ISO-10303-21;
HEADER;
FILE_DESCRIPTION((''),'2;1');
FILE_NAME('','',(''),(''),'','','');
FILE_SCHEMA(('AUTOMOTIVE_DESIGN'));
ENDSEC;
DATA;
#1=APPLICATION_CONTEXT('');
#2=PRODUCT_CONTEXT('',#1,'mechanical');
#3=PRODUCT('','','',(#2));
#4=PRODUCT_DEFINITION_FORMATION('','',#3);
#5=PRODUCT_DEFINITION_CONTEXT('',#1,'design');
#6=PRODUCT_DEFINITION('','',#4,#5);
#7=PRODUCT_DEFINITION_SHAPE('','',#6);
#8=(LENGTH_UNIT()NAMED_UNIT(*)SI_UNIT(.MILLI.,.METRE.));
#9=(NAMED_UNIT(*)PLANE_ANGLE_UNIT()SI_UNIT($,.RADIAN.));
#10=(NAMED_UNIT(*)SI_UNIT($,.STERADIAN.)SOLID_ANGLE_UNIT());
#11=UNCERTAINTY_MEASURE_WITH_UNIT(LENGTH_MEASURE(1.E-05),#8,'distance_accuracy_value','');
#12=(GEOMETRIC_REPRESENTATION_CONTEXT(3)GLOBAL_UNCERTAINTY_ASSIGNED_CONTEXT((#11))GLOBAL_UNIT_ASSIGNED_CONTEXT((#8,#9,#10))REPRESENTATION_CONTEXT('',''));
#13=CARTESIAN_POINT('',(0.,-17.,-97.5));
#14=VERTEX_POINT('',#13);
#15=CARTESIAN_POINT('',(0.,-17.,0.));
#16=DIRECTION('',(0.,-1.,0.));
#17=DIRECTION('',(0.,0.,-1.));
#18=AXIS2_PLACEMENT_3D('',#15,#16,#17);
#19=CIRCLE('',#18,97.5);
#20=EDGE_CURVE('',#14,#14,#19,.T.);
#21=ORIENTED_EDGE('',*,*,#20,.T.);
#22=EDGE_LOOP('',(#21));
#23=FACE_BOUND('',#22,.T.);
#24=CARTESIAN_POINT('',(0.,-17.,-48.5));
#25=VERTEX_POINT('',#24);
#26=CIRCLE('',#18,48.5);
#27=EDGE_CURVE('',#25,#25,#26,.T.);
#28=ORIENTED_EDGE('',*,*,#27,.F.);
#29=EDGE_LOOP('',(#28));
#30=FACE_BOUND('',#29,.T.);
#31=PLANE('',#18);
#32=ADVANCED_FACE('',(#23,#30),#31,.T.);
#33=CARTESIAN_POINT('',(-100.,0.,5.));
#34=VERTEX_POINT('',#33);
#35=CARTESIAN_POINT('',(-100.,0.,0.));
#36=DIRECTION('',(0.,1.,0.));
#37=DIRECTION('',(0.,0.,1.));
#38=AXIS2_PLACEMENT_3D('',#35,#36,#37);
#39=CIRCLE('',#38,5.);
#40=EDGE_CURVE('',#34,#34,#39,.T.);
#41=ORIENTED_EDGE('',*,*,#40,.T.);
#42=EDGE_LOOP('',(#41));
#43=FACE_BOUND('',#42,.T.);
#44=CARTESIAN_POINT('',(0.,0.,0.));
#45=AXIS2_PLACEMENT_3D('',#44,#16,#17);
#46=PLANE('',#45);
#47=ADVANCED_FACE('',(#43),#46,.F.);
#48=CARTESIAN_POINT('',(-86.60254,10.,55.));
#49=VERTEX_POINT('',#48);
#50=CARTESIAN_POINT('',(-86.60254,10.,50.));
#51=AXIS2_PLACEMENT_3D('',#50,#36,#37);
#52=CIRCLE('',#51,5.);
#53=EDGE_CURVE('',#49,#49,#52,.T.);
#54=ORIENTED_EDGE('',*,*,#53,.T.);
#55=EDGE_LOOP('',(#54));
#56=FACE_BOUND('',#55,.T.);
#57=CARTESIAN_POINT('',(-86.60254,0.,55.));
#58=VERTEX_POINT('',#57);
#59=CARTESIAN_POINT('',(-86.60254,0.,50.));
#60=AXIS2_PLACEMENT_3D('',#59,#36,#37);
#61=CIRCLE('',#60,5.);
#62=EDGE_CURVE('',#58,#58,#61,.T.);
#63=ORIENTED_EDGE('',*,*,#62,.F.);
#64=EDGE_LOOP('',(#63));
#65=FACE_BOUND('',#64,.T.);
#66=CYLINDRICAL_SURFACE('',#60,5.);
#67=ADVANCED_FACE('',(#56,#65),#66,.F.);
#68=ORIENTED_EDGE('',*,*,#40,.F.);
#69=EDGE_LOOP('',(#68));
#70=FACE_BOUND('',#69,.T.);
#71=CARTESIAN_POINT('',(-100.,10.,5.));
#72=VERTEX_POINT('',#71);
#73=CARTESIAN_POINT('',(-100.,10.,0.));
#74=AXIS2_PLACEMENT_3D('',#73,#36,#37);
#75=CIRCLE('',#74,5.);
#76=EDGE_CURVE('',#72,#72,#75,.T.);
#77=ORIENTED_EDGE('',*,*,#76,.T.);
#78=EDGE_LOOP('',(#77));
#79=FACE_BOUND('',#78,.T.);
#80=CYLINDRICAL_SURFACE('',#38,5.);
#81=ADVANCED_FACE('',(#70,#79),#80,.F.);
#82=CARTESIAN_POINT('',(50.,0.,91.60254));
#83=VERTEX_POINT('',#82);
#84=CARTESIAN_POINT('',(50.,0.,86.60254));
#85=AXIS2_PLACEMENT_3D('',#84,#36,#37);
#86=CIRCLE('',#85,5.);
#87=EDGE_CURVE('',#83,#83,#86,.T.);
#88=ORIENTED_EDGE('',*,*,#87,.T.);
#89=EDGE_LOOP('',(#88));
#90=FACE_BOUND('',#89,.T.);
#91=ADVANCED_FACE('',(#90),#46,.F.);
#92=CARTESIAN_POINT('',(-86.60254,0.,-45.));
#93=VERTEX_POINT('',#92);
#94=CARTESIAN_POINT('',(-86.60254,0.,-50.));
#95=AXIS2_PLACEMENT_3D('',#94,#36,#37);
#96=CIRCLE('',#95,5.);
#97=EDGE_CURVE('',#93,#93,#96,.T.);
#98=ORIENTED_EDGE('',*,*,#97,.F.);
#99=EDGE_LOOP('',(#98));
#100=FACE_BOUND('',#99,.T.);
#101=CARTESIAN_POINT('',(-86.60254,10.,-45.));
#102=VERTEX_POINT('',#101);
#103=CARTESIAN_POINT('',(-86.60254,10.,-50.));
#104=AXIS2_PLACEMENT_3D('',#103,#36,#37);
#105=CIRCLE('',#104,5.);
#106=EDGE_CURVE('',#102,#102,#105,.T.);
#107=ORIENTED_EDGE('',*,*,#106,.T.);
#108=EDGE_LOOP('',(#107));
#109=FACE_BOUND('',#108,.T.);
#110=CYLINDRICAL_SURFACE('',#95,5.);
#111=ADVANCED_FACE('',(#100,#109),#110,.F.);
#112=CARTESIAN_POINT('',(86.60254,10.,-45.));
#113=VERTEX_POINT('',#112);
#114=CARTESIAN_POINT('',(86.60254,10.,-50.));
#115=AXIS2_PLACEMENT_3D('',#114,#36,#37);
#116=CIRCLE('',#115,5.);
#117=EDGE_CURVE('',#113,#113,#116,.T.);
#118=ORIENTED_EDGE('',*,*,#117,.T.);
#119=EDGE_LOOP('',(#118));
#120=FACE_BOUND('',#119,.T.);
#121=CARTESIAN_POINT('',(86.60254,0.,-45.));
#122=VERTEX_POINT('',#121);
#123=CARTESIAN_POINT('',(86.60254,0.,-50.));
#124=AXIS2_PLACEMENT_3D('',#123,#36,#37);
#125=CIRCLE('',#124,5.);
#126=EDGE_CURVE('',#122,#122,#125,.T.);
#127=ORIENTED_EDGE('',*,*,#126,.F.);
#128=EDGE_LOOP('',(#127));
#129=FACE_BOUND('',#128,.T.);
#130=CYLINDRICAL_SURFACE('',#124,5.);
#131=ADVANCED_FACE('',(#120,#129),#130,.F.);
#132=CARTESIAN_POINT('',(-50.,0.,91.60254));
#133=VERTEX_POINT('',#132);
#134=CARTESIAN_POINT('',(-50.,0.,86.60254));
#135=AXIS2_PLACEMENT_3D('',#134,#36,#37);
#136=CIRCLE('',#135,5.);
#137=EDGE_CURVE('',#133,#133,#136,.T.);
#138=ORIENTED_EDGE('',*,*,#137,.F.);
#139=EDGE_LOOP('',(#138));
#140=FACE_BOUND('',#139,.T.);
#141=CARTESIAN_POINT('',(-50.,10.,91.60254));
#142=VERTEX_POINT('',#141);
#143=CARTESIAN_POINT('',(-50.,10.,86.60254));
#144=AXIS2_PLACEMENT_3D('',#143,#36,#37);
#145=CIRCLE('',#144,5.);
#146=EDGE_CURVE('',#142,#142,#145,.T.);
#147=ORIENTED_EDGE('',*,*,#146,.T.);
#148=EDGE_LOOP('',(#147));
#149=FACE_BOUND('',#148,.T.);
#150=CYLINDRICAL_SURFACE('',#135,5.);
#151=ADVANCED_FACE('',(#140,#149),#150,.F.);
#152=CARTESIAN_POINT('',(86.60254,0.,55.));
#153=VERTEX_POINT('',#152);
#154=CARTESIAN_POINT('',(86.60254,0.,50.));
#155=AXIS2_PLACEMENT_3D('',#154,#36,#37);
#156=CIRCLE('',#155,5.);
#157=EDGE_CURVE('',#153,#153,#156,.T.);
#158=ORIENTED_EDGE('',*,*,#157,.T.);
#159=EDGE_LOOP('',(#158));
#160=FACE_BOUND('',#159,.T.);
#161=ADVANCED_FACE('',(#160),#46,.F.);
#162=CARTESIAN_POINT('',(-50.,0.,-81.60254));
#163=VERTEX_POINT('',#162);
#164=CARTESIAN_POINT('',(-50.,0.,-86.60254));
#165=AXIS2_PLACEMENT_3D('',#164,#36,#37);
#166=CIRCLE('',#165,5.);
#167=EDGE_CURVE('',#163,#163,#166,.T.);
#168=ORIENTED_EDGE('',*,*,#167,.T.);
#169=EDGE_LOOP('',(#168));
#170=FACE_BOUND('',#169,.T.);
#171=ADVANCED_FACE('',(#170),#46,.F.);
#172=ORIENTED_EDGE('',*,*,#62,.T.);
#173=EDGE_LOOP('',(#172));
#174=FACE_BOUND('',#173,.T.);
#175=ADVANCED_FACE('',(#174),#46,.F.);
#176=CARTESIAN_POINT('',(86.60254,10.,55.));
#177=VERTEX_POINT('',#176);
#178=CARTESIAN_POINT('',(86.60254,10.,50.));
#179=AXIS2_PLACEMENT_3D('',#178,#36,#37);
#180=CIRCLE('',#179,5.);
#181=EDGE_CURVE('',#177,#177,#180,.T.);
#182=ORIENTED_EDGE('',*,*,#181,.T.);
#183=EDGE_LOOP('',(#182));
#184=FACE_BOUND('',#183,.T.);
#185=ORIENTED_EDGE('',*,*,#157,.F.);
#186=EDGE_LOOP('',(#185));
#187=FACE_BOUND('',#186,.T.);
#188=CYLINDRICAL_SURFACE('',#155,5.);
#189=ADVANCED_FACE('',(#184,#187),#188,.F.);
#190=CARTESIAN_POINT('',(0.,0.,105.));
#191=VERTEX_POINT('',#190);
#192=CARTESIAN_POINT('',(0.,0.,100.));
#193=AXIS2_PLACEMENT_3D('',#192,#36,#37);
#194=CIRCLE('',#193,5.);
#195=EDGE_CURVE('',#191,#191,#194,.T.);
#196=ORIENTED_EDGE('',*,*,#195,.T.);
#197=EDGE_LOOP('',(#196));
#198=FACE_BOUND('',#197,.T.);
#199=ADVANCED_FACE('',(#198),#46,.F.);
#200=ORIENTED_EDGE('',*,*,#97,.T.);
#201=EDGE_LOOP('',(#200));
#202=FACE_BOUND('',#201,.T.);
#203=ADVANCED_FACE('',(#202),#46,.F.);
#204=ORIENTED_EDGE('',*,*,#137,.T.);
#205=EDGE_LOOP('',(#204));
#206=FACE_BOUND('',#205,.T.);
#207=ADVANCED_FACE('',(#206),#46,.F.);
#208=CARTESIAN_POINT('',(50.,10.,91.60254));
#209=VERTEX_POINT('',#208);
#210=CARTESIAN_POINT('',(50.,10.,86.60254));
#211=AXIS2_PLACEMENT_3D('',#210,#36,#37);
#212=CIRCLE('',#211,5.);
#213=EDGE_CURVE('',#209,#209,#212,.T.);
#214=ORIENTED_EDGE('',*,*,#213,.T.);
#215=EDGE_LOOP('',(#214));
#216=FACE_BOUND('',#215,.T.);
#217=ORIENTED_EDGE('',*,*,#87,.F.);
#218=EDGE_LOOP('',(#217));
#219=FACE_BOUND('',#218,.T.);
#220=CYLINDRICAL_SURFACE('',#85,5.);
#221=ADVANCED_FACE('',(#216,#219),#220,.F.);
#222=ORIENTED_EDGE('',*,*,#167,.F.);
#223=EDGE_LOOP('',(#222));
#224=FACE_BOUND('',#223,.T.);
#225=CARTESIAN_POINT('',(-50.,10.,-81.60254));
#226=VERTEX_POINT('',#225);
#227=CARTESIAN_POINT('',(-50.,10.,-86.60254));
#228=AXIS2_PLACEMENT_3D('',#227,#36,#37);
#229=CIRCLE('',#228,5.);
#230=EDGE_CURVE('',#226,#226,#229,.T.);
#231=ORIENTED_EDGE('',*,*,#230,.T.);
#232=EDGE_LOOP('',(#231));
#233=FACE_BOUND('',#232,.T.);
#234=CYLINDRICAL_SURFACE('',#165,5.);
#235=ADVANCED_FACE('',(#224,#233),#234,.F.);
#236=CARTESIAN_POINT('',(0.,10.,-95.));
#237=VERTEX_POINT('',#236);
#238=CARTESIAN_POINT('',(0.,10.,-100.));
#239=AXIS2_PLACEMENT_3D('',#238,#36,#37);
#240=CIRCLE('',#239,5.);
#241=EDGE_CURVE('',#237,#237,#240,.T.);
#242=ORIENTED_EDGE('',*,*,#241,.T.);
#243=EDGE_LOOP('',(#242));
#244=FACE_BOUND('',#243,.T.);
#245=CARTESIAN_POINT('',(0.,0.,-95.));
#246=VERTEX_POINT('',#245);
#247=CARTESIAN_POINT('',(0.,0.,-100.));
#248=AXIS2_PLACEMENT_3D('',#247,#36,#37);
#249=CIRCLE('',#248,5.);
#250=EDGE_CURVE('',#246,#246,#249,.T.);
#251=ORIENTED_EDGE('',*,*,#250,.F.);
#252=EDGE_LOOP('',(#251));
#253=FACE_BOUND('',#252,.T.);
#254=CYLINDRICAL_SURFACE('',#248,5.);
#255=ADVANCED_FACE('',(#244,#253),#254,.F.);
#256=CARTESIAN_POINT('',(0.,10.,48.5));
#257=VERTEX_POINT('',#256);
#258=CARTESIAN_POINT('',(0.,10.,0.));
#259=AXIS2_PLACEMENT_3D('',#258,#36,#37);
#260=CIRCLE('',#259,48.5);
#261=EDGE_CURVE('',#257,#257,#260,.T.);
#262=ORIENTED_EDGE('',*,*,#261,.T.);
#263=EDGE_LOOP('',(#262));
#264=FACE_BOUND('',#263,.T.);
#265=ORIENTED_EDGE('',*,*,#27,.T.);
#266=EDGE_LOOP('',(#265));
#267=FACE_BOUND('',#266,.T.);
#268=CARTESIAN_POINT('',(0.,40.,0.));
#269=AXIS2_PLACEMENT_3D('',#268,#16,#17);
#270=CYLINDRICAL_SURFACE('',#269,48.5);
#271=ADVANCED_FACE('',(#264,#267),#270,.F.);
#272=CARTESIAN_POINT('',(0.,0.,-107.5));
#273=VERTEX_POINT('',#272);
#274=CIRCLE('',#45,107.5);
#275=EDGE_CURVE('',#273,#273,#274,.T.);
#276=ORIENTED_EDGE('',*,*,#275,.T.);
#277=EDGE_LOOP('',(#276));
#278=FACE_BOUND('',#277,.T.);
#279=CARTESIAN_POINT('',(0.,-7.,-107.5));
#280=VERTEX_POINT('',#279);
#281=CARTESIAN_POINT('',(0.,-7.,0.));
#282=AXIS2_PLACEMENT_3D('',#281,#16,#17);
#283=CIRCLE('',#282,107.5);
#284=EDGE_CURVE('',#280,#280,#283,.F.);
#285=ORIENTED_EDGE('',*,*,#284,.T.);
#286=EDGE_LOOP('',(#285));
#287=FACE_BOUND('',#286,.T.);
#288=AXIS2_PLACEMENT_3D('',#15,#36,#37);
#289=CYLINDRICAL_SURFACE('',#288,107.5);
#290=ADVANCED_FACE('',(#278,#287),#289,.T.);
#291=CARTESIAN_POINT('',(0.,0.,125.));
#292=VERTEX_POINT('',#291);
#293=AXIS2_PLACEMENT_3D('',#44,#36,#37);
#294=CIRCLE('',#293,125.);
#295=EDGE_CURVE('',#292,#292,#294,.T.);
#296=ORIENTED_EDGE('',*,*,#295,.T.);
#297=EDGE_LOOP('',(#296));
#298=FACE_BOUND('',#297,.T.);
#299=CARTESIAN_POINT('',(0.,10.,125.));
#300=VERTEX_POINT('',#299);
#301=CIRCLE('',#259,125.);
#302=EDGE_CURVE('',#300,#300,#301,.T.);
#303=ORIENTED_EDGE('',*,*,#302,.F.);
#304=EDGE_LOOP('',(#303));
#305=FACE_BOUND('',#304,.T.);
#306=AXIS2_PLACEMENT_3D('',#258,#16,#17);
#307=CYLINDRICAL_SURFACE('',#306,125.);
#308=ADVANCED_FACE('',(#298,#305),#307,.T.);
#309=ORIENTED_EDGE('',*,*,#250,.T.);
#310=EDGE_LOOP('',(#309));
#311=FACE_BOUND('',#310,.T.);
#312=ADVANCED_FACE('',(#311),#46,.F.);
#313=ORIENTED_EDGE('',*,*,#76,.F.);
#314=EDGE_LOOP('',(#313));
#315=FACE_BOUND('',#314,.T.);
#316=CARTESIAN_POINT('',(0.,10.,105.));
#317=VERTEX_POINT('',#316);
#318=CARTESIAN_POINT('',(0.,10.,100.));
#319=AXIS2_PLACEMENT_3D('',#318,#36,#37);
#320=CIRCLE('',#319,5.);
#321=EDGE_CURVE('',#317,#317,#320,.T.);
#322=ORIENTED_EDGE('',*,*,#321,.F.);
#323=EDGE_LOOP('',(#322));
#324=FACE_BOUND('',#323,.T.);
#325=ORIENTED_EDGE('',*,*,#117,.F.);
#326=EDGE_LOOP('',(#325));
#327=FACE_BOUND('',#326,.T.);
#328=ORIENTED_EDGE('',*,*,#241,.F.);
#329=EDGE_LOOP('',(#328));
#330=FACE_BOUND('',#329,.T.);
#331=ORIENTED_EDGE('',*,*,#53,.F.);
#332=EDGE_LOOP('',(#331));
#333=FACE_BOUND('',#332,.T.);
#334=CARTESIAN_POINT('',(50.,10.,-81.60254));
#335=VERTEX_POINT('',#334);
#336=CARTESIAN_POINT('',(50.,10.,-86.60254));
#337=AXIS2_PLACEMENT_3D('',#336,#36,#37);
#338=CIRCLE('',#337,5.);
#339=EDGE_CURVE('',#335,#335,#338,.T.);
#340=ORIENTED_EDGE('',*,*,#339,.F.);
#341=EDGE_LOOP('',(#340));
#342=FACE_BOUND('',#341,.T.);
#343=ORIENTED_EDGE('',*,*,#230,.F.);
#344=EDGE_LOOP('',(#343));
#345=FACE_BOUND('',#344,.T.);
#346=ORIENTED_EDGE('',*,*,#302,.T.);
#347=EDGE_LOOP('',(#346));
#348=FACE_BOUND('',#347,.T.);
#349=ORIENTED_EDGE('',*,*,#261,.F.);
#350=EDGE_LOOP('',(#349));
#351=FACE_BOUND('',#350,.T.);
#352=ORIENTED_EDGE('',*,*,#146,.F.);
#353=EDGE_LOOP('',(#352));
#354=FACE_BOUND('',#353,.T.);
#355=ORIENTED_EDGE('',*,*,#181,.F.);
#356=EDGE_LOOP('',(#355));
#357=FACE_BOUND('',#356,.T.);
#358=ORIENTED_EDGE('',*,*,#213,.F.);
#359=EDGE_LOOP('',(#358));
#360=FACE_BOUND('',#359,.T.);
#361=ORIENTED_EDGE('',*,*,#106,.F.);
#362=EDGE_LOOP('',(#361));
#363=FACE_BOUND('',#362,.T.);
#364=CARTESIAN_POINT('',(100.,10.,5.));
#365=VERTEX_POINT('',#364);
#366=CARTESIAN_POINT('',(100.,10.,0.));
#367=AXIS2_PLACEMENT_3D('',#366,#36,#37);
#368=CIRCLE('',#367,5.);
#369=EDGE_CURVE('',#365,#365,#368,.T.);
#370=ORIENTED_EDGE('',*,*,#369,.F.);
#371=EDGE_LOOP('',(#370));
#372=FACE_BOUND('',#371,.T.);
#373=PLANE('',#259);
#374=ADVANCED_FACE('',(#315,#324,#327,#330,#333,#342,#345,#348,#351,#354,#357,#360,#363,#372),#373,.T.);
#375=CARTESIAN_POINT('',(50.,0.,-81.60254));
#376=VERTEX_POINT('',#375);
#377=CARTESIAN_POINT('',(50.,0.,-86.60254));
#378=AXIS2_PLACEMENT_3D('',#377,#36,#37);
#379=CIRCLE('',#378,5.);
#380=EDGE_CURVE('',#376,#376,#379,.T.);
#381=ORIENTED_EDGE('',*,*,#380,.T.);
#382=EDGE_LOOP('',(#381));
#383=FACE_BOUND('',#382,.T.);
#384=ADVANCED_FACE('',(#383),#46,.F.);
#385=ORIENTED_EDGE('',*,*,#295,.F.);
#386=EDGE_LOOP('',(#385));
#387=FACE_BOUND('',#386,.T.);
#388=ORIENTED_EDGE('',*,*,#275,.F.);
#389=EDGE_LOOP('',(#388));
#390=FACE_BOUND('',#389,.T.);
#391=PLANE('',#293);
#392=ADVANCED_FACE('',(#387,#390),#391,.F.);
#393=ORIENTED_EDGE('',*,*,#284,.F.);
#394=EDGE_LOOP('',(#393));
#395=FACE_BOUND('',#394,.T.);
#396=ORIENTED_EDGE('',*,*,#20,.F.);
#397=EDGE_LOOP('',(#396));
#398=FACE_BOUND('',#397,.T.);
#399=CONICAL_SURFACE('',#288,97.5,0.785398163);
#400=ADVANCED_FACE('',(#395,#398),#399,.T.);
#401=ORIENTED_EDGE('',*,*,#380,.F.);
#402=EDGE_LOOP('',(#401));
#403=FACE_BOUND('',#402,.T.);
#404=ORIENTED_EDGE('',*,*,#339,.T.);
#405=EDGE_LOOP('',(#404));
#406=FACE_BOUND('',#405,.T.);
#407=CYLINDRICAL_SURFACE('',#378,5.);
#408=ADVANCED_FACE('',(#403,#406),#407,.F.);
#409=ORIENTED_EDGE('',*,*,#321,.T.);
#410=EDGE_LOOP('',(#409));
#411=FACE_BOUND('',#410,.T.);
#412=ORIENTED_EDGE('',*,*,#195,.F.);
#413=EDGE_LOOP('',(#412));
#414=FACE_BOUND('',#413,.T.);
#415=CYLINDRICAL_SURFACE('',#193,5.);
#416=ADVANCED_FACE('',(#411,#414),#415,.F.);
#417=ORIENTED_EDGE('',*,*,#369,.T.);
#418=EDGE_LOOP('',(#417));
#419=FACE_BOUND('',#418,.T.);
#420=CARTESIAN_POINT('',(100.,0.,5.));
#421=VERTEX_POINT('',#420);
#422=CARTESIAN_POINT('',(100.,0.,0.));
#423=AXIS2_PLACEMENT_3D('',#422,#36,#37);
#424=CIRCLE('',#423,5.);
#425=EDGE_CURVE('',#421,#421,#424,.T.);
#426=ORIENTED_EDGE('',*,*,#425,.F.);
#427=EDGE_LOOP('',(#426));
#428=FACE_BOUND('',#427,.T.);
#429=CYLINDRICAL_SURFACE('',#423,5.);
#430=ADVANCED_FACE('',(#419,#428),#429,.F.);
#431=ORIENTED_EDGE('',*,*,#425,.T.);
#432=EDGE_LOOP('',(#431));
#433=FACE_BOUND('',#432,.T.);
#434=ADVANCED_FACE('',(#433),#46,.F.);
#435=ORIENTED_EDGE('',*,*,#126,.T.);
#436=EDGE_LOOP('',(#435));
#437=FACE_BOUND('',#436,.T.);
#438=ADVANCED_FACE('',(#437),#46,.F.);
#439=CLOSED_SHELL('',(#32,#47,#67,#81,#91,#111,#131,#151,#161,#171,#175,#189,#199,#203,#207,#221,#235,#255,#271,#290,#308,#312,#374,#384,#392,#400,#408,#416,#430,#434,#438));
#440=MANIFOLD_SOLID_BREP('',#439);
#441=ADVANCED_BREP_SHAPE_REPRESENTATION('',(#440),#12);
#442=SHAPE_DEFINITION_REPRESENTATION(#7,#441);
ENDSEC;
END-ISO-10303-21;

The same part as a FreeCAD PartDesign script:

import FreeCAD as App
import Part
import Sketcher


def edges_at(feature, points):
    """Names of the edges that pass closest to the given points."""
    edges = feature.Shape.Edges
    near = lambda p: min(range(len(edges)), key=lambda i: edges[i].distToShape(Part.Vertex(*p))[0])
    return sorted({f"Edge{near(p) + 1}" for p in points})

doc = App.newDocument("Part")
body = doc.addObject("PartDesign::Body", "Body")

# Sketch on XZ plane
sketch1 = doc.addObject("Sketcher::SketchObject", "Sketch")
body.addObject(sketch1)
sketch1.AttachmentSupport = (doc.XZ_Plane, [""])
sketch1.MapMode = "FlatFace"
sketch1.addGeometry(Part.Circle(App.Vector(0, 0, 0), App.Vector(0, 0, 1), 125), False)
sketch1.addConstraint([
    Sketcher.Constraint("Coincident", 0, 3, -1, 1),
    Sketcher.Constraint("Diameter", 0, 250.0),
])
pad1 = doc.addObject("PartDesign::Pad", "Pad")
body.addObject(pad1)
pad1.Profile = sketch1
pad1.Length = 10
pad1.Reversed = True

# Sketch on XZ plane
sketch2 = doc.addObject("Sketcher::SketchObject", "Sketch001")
body.addObject(sketch2)
sketch2.AttachmentSupport = (doc.XZ_Plane, [""])
sketch2.MapMode = "FlatFace"
sketch2.AttachmentOffset = App.Placement(App.Vector(0, 0, -10), App.Rotation())
sketch2.addGeometry([
    Part.Circle(App.Vector(100, 0, 0), App.Vector(0, 0, 1), 5),  # 0
    Part.Circle(App.Vector(87, 50, 0), App.Vector(0, 0, 1), 5),  # 1
    Part.Circle(App.Vector(50, 87, 0), App.Vector(0, 0, 1), 5),  # 2
    Part.Circle(App.Vector(0, 100, 0), App.Vector(0, 0, 1), 5),  # 3
    Part.Circle(App.Vector(-50, 87, 0), App.Vector(0, 0, 1), 5),  # 4
    Part.Circle(App.Vector(-87, 50, 0), App.Vector(0, 0, 1), 5),  # 5
    Part.Circle(App.Vector(-100, 0, 0), App.Vector(0, 0, 1), 5),  # 6
    Part.Circle(App.Vector(-87, -50, 0), App.Vector(0, 0, 1), 5),  # 7
    Part.Circle(App.Vector(-50, -87, 0), App.Vector(0, 0, 1), 5),  # 8
    Part.Circle(App.Vector(0, -100, 0), App.Vector(0, 0, 1), 5),  # 9
    Part.Circle(App.Vector(50, -87, 0), App.Vector(0, 0, 1), 5),  # 10
    Part.Circle(App.Vector(87, -50, 0), App.Vector(0, 0, 1), 5),  # 11
], False)
sketch2.addConstraint([
    Sketcher.Constraint("Equal", 0, 1),
    Sketcher.Constraint("Equal", 1, 2),
    Sketcher.Constraint("Equal", 2, 3),
    Sketcher.Constraint("Equal", 3, 4),
    Sketcher.Constraint("Equal", 4, 5),
    Sketcher.Constraint("Equal", 5, 6),
    Sketcher.Constraint("Equal", 6, 7),
    Sketcher.Constraint("Equal", 7, 8),
    Sketcher.Constraint("Equal", 8, 9),
    Sketcher.Constraint("Equal", 9, 10),
    Sketcher.Constraint("Equal", 10, 11),
    Sketcher.Constraint("Symmetric", 0, 3, 6, 3, -1, 1),
    Sketcher.Constraint("Symmetric", 1, 3, 7, 3, -1, 1),
    Sketcher.Constraint("Symmetric", 2, 3, 8, 3, -1, 1),
    Sketcher.Constraint("Symmetric", 3, 3, 9, 3, -1, 1),
    Sketcher.Constraint("Symmetric", 4, 3, 10, 3, -1, 1),
    Sketcher.Constraint("Symmetric", 5, 3, 11, 3, -1, 1),
    Sketcher.Constraint("Symmetric", 2, 3, 4, 3, -2),
    Sketcher.Constraint("Symmetric", 1, 3, 5, 3, -2),
    Sketcher.Constraint("PointOnObject", 0, 3, -1),
    Sketcher.Constraint("PointOnObject", 3, 3, -2),
    Sketcher.Constraint("Diameter", 0, 10.0),
    Sketcher.Constraint("DistanceX", -1, 1, 0, 3, 100.0),
    Sketcher.Constraint("DistanceY", -1, 1, 1, 3, 50.0),
    Sketcher.Constraint("DistanceX", -1, 1, 2, 3, 50.0),
    Sketcher.Constraint("DistanceY", -1, 1, 3, 3, 100.0),
    Sketcher.Constraint("DistanceX", -1, 1, 1, 3, 86.60254),
    Sketcher.Constraint("DistanceY", -1, 1, 2, 3, 86.60254),
])
pocket1 = doc.addObject("PartDesign::Pocket", "Pocket")
body.addObject(pocket1)
pocket1.Profile = sketch2
pocket1.Length = 10
pocket1.Reversed = True

# Sketch on XZ plane
sketch3 = doc.addObject("Sketcher::SketchObject", "Sketch002")
body.addObject(sketch3)
sketch3.AttachmentSupport = (doc.XZ_Plane, [""])
sketch3.MapMode = "FlatFace"
sketch3.addGeometry(Part.Circle(App.Vector(0, 0, 0), App.Vector(0, 0, 1), 108), False)
sketch3.addConstraint([
    Sketcher.Constraint("Coincident", 0, 3, -1, 1),
    Sketcher.Constraint("Diameter", 0, 215.0),
])
pad2 = doc.addObject("PartDesign::Pad", "Pad001")
body.addObject(pad2)
pad2.Profile = sketch3
pad2.Length = 17
doc.recompute()

chamfer = doc.addObject("PartDesign::Chamfer", "Chamfer")
body.addObject(chamfer)
chamfer.Base = (pad2, edges_at(pad2, [(0, -17, 107.5)]))
chamfer.Size = 10

# Sketch on XZ plane
sketch4 = doc.addObject("Sketcher::SketchObject", "Sketch003")
body.addObject(sketch4)
sketch4.AttachmentSupport = (doc.XZ_Plane, [""])
sketch4.MapMode = "FlatFace"
sketch4.AttachmentOffset = App.Placement(App.Vector(0, 0, 17), App.Rotation())
sketch4.addGeometry(Part.Circle(App.Vector(0, 0, 0), App.Vector(0, 0, 1), 48), False)
sketch4.addConstraint([
    Sketcher.Constraint("Coincident", 0, 3, -1, 1),
    Sketcher.Constraint("Diameter", 0, 97.0),
])
pocket2 = doc.addObject("PartDesign::Pocket", "Pocket001")
body.addObject(pocket2)
pocket2.Profile = sketch4
pocket2.Length = 57

doc.recompute()
